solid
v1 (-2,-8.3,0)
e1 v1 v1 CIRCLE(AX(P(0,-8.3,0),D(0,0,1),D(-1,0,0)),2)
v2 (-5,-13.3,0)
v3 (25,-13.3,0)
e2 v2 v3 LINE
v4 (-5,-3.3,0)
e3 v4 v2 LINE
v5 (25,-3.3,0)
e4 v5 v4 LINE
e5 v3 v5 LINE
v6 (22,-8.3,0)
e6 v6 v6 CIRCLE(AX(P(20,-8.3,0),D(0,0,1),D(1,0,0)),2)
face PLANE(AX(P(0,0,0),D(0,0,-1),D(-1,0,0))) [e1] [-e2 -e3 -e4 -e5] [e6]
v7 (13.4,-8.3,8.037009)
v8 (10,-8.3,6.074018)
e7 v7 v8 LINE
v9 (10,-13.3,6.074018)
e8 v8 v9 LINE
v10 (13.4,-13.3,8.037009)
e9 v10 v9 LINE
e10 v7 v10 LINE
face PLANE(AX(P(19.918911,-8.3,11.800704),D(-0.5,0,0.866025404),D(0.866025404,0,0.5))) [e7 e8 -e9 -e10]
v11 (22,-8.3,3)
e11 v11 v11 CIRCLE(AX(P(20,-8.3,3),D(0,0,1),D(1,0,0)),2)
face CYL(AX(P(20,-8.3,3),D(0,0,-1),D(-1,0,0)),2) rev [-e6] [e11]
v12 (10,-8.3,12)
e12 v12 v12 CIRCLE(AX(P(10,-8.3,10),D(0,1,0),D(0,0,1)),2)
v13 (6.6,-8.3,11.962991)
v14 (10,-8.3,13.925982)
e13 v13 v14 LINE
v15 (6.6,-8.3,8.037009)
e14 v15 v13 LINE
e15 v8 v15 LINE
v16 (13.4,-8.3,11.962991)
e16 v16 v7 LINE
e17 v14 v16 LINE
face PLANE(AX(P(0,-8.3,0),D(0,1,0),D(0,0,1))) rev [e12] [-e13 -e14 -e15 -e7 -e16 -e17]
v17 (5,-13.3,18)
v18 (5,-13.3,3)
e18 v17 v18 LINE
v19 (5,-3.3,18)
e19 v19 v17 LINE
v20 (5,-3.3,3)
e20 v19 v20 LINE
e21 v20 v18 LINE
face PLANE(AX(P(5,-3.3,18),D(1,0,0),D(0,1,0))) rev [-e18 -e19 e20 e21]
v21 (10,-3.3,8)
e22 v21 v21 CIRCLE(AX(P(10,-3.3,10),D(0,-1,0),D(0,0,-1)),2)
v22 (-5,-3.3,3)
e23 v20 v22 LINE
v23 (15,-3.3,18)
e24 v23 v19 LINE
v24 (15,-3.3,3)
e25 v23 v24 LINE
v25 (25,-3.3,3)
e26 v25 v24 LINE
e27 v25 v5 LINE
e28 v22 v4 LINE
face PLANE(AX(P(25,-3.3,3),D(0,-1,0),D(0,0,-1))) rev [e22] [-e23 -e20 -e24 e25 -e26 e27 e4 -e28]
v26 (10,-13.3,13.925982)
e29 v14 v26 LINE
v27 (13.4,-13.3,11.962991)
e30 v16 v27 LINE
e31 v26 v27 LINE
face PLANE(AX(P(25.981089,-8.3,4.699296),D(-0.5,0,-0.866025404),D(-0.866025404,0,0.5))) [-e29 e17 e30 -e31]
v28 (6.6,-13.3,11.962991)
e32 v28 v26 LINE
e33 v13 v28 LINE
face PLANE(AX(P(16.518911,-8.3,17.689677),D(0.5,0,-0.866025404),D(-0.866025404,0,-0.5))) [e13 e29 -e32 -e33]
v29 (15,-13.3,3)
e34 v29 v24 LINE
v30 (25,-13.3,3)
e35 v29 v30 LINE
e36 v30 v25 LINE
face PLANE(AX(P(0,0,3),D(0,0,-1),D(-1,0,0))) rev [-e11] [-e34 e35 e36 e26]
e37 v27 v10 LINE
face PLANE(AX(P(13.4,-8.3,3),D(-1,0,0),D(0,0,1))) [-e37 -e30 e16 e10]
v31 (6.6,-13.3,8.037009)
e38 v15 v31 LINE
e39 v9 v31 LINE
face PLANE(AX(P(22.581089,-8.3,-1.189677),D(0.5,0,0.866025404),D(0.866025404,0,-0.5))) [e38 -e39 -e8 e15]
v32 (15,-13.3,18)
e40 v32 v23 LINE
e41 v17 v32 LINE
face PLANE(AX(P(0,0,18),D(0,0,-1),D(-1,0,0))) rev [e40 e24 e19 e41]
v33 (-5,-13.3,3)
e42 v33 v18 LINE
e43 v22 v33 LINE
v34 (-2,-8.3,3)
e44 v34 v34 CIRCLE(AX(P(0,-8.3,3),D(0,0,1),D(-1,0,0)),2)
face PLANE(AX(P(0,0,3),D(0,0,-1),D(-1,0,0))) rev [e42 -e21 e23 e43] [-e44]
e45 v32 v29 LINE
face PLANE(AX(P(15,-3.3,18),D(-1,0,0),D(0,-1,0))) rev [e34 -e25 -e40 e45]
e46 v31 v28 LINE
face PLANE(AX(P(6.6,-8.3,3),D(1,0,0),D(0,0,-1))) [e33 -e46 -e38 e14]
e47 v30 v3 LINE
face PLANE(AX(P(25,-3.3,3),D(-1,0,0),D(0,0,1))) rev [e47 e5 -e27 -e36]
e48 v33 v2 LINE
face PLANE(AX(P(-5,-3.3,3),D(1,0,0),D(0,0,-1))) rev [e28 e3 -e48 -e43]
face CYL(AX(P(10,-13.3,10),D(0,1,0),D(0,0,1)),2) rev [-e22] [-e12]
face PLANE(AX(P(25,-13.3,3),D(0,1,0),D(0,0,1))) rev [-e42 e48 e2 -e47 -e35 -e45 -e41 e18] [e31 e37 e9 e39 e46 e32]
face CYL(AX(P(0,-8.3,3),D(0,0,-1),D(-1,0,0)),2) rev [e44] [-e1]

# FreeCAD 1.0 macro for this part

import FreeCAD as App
import Part
import Sketcher

V = App.Vector
Q = App.Units.Quantity

doc = App.newDocument("Part")
params = doc.addObject("Spreadsheet::Sheet", "Params")
for row, (alias, value) in enumerate([
    ("sketch1_diameter", "4 mm"),
    ("sketch1_width", "30 mm"),
    ("sketch1_height", "10 mm"),
    ("pad1_length", "3 mm"),
    ("sketch2_width", "10 mm"),
    ("pad2_length", "15 mm"),
    ("sketch3_diameter", "4 mm"),
    ("pocket1_length", "5 mm"),
    ("sketch4_diameter", "4 mm"),
], start=1):
    params.set(f"A{row}", alias)
    params.set(f"B{row}", "=" + value)
    params.setAlias(f"B{row}", alias)

body = doc.addObject("PartDesign::Body", "Body")

# Sketch on XY plane
sketch1 = doc.addObject("Sketcher::SketchObject", "Sketch")
body.addObject(sketch1)
sketch1.AttachmentSupport = (doc.XY_Plane, [""])
sketch1.MapMode = "FlatFace"
sketch1.addGeometry([
    Part.LineSegment(V(-5, -3.3, 0), V(-5, -13.3, 0)),  # 0
    Part.LineSegment(V(-5, -13.3, 0), V(25, -13.3, 0)),  # 1
    Part.LineSegment(V(25, -13.3, 0), V(25, -3.3, 0)),  # 2
    Part.LineSegment(V(25, -3.3, 0), V(-5, -3.3, 0)),  # 3
    Part.Circle(V(0, -8.3, 0), V(0, 0, 1), 2),  # 4
    Part.Circle(V(20, -8.3, 0), V(0, 0, 1), 2),  # 5
], False)
sketch1.addConstraint([
    Sketcher.Constraint("Coincident", 0, 2, 1, 1),
    Sketcher.Constraint("Coincident", 1, 2, 2, 1),
    Sketcher.Constraint("Coincident", 2, 2, 3, 1),
    Sketcher.Constraint("Coincident", 3, 2, 0, 1),
    Sketcher.Constraint("Vertical", 0),
    Sketcher.Constraint("Horizontal", 1),
    Sketcher.Constraint("Vertical", 2),
    Sketcher.Constraint("Horizontal", 3),
    Sketcher.Constraint("Equal", 4, 5),
    Sketcher.Constraint("PointOnObject", 4, 3, -2),
    Sketcher.Constraint("Horizontal", 4, 3, 5, 3),
    Sketcher.Constraint("Diameter", 4, 4.0),
    Sketcher.Constraint("DistanceX", 1, 1, 1, 2, 30.0),
    Sketcher.Constraint("DistanceY", 0, 2, 0, 1, 10.0),
    Sketcher.Constraint("DistanceX", -1, 1, 5, 3, 20.0),
    Sketcher.Constraint("DistanceX", 0, 2, -1, 1, 5.0),
    Sketcher.Constraint("DistanceY", 0, 2, 4, 3, 5.0),
    Sketcher.Constraint("DistanceY", 4, 3, -1, 1, 8.3),
])
sketch1.setExpression("Constraints[11]", "Params.sketch1_diameter")
sketch1.setExpression("Constraints[12]", "Params.sketch1_width")
sketch1.setExpression("Constraints[13]", "Params.sketch1_height")
pad1 = doc.addObject("PartDesign::Pad", "Pad")
body.addObject(pad1)
pad1.Profile = sketch1
pad1.setExpression("Length", "Params.pad1_length")

# Sketch on XY plane
sketch2 = doc.addObject("Sketcher::SketchObject", "Sketch001")
body.addObject(sketch2)
sketch2.AttachmentSupport = (doc.XY_Plane, [""])
sketch2.MapMode = "FlatFace"
sketch2.AttachmentOffset = App.Placement(V(0, 0, 3), App.Rotation())
sketch2.addGeometry([
    Part.LineSegment(V(5, -3, 0), V(5, -13, 0)),
    Part.LineSegment(V(5, -13, 0), V(15, -13, 0)),
    Part.LineSegment(V(15, -13, 0), V(15, -3, 0)),
    Part.LineSegment(V(15, -3, 0), V(5, -3, 0)),
], False)
sketch2.addConstraint([
    Sketcher.Constraint("Coincident", 0, 2, 1, 1),
    Sketcher.Constraint("Coincident", 1, 2, 2, 1),
    Sketcher.Constraint("Coincident", 2, 2, 3, 1),
    Sketcher.Constraint("Coincident", 3, 2, 0, 1),
    Sketcher.Constraint("Vertical", 0),
    Sketcher.Constraint("Horizontal", 1),
    Sketcher.Constraint("Vertical", 2),
    Sketcher.Constraint("Horizontal", 3),
    Sketcher.Constraint("Equal", 3, 0),
    Sketcher.Constraint("DistanceX", 1, 1, 1, 2, 10.0),
    Sketcher.Constraint("DistanceX", -1, 1, 0, 2, 5.0),
    Sketcher.Constraint("DistanceY", 0, 2, -1, 1, 13.3),
])
sketch2.setExpression("Constraints[9]", "Params.sketch2_width")
pad2 = doc.addObject("PartDesign::Pad", "Pad001")
body.addObject(pad2)
pad2.Profile = sketch2
pad2.setExpression("Length", "Params.pad2_length")

# Sketch on XZ plane
sketch3 = doc.addObject("Sketcher::SketchObject", "Sketch002")
body.addObject(sketch3)
sketch3.AttachmentSupport = (doc.XZ_Plane, [""])
sketch3.MapMode = "FlatFace"
sketch3.AttachmentOffset = App.Placement(V(0, 0, 13.3), App.Rotation())
sketch3.addGeometry([
    Part.LineSegment(V(10, 6.1, 0), V(6.6, 8, 0)),  # 0
    Part.LineSegment(V(6.6, 8, 0), V(6.6, 12, 0)),  # 1
    Part.LineSegment(V(6.6, 12, 0), V(10, 13.9, 0)),  # 2
    Part.LineSegment(V(10, 13.9, 0), V(13.4, 12, 0)),  # 3
    Part.LineSegment(V(13.4, 12, 0), V(13.4, 8, 0)),  # 4
    Part.LineSegment(V(13.4, 8, 0), V(10, 6.1, 0)),  # 5
    Part.Circle(V(10, 10, 0), V(0, 0, 1), 2),  # 6
], False)
sketch3.addConstraint([
    Sketcher.Constraint("Coincident", 0, 2, 1, 1),
    Sketcher.Constraint("Coincident", 1, 2, 2, 1),
    Sketcher.Constraint("Coincident", 2, 2, 3, 1),
    Sketcher.Constraint("Coincident", 3, 2, 4, 1),
    Sketcher.Constraint("Coincident", 4, 2, 5, 1),
    Sketcher.Constraint("Coincident", 5, 2, 0, 1),
    Sketcher.Constraint("Vertical", 1),
    Sketcher.Constraint("Vertical", 4),
    Sketcher.Constraint("Parallel", 0, 3),
    Sketcher.Constraint("Parallel", 2, 5),
    Sketcher.Constraint("Horizontal", 1, 2, 3, 2),
    Sketcher.Constraint("Horizontal", 0, 2, 4, 2),
    Sketcher.Constraint("Vertical", 6, 3, 2, 2),
    Sketcher.Constraint("Vertical", 2, 2, 5, 2),
    Sketcher.Constraint("Diameter", 6, 4.0),
    Sketcher.Constraint("Angle", 0, Q("150 deg")),
    Sketcher.Constraint("DistanceX", -1, 1, 6, 3, 10.0),
    Sketcher.Constraint("DistanceY", -1, 1, 6, 3, 10.0),
    Sketcher.Constraint("DistanceX", -1, 1, 0, 2, 6.6),
    Sketcher.Constraint("DistanceY", 1, 1, 1, 2, 3.925982),
    Sketcher.Constraint("DistanceY", -1, 1, 0, 2, 8.037009),
])
sketch3.setExpression("Constraints[14]", "Params.sketch3_diameter")
pocket1 = doc.addObject("PartDesign::Pocket", "Pocket")
body.addObject(pocket1)
pocket1.Profile = sketch3
pocket1.setExpression("Length", "Params.pocket1_length")

# Sketch on XZ plane
sketch4 = doc.addObject("Sketcher::SketchObject", "Sketch003")
body.addObject(sketch4)
sketch4.AttachmentSupport = (doc.XZ_Plane, [""])
sketch4.MapMode = "FlatFace"
sketch4.AttachmentOffset = App.Placement(V(0, 0, 3.3), App.Rotation())
sketch4.addGeometry(Part.Circle(V(10, 10, 0), V(0, 0, 1), 2), False)
sketch4.addConstraint([
    Sketcher.Constraint("Diameter", 0, 4.0),
    Sketcher.Constraint("DistanceX", -1, 1, 0, 3, 10.0),
    Sketcher.Constraint("DistanceY", -1, 1, 0, 3, 10.0),
])
sketch4.setExpression("Constraints[0]", "Params.sketch4_diameter")
pocket2 = doc.addObject("PartDesign::Pocket", "Pocket001")
body.addObject(pocket2)
pocket2.Profile = sketch4
pocket2.Type = "ThroughAll"
pocket2.Midplane = True

doc.recompute()
